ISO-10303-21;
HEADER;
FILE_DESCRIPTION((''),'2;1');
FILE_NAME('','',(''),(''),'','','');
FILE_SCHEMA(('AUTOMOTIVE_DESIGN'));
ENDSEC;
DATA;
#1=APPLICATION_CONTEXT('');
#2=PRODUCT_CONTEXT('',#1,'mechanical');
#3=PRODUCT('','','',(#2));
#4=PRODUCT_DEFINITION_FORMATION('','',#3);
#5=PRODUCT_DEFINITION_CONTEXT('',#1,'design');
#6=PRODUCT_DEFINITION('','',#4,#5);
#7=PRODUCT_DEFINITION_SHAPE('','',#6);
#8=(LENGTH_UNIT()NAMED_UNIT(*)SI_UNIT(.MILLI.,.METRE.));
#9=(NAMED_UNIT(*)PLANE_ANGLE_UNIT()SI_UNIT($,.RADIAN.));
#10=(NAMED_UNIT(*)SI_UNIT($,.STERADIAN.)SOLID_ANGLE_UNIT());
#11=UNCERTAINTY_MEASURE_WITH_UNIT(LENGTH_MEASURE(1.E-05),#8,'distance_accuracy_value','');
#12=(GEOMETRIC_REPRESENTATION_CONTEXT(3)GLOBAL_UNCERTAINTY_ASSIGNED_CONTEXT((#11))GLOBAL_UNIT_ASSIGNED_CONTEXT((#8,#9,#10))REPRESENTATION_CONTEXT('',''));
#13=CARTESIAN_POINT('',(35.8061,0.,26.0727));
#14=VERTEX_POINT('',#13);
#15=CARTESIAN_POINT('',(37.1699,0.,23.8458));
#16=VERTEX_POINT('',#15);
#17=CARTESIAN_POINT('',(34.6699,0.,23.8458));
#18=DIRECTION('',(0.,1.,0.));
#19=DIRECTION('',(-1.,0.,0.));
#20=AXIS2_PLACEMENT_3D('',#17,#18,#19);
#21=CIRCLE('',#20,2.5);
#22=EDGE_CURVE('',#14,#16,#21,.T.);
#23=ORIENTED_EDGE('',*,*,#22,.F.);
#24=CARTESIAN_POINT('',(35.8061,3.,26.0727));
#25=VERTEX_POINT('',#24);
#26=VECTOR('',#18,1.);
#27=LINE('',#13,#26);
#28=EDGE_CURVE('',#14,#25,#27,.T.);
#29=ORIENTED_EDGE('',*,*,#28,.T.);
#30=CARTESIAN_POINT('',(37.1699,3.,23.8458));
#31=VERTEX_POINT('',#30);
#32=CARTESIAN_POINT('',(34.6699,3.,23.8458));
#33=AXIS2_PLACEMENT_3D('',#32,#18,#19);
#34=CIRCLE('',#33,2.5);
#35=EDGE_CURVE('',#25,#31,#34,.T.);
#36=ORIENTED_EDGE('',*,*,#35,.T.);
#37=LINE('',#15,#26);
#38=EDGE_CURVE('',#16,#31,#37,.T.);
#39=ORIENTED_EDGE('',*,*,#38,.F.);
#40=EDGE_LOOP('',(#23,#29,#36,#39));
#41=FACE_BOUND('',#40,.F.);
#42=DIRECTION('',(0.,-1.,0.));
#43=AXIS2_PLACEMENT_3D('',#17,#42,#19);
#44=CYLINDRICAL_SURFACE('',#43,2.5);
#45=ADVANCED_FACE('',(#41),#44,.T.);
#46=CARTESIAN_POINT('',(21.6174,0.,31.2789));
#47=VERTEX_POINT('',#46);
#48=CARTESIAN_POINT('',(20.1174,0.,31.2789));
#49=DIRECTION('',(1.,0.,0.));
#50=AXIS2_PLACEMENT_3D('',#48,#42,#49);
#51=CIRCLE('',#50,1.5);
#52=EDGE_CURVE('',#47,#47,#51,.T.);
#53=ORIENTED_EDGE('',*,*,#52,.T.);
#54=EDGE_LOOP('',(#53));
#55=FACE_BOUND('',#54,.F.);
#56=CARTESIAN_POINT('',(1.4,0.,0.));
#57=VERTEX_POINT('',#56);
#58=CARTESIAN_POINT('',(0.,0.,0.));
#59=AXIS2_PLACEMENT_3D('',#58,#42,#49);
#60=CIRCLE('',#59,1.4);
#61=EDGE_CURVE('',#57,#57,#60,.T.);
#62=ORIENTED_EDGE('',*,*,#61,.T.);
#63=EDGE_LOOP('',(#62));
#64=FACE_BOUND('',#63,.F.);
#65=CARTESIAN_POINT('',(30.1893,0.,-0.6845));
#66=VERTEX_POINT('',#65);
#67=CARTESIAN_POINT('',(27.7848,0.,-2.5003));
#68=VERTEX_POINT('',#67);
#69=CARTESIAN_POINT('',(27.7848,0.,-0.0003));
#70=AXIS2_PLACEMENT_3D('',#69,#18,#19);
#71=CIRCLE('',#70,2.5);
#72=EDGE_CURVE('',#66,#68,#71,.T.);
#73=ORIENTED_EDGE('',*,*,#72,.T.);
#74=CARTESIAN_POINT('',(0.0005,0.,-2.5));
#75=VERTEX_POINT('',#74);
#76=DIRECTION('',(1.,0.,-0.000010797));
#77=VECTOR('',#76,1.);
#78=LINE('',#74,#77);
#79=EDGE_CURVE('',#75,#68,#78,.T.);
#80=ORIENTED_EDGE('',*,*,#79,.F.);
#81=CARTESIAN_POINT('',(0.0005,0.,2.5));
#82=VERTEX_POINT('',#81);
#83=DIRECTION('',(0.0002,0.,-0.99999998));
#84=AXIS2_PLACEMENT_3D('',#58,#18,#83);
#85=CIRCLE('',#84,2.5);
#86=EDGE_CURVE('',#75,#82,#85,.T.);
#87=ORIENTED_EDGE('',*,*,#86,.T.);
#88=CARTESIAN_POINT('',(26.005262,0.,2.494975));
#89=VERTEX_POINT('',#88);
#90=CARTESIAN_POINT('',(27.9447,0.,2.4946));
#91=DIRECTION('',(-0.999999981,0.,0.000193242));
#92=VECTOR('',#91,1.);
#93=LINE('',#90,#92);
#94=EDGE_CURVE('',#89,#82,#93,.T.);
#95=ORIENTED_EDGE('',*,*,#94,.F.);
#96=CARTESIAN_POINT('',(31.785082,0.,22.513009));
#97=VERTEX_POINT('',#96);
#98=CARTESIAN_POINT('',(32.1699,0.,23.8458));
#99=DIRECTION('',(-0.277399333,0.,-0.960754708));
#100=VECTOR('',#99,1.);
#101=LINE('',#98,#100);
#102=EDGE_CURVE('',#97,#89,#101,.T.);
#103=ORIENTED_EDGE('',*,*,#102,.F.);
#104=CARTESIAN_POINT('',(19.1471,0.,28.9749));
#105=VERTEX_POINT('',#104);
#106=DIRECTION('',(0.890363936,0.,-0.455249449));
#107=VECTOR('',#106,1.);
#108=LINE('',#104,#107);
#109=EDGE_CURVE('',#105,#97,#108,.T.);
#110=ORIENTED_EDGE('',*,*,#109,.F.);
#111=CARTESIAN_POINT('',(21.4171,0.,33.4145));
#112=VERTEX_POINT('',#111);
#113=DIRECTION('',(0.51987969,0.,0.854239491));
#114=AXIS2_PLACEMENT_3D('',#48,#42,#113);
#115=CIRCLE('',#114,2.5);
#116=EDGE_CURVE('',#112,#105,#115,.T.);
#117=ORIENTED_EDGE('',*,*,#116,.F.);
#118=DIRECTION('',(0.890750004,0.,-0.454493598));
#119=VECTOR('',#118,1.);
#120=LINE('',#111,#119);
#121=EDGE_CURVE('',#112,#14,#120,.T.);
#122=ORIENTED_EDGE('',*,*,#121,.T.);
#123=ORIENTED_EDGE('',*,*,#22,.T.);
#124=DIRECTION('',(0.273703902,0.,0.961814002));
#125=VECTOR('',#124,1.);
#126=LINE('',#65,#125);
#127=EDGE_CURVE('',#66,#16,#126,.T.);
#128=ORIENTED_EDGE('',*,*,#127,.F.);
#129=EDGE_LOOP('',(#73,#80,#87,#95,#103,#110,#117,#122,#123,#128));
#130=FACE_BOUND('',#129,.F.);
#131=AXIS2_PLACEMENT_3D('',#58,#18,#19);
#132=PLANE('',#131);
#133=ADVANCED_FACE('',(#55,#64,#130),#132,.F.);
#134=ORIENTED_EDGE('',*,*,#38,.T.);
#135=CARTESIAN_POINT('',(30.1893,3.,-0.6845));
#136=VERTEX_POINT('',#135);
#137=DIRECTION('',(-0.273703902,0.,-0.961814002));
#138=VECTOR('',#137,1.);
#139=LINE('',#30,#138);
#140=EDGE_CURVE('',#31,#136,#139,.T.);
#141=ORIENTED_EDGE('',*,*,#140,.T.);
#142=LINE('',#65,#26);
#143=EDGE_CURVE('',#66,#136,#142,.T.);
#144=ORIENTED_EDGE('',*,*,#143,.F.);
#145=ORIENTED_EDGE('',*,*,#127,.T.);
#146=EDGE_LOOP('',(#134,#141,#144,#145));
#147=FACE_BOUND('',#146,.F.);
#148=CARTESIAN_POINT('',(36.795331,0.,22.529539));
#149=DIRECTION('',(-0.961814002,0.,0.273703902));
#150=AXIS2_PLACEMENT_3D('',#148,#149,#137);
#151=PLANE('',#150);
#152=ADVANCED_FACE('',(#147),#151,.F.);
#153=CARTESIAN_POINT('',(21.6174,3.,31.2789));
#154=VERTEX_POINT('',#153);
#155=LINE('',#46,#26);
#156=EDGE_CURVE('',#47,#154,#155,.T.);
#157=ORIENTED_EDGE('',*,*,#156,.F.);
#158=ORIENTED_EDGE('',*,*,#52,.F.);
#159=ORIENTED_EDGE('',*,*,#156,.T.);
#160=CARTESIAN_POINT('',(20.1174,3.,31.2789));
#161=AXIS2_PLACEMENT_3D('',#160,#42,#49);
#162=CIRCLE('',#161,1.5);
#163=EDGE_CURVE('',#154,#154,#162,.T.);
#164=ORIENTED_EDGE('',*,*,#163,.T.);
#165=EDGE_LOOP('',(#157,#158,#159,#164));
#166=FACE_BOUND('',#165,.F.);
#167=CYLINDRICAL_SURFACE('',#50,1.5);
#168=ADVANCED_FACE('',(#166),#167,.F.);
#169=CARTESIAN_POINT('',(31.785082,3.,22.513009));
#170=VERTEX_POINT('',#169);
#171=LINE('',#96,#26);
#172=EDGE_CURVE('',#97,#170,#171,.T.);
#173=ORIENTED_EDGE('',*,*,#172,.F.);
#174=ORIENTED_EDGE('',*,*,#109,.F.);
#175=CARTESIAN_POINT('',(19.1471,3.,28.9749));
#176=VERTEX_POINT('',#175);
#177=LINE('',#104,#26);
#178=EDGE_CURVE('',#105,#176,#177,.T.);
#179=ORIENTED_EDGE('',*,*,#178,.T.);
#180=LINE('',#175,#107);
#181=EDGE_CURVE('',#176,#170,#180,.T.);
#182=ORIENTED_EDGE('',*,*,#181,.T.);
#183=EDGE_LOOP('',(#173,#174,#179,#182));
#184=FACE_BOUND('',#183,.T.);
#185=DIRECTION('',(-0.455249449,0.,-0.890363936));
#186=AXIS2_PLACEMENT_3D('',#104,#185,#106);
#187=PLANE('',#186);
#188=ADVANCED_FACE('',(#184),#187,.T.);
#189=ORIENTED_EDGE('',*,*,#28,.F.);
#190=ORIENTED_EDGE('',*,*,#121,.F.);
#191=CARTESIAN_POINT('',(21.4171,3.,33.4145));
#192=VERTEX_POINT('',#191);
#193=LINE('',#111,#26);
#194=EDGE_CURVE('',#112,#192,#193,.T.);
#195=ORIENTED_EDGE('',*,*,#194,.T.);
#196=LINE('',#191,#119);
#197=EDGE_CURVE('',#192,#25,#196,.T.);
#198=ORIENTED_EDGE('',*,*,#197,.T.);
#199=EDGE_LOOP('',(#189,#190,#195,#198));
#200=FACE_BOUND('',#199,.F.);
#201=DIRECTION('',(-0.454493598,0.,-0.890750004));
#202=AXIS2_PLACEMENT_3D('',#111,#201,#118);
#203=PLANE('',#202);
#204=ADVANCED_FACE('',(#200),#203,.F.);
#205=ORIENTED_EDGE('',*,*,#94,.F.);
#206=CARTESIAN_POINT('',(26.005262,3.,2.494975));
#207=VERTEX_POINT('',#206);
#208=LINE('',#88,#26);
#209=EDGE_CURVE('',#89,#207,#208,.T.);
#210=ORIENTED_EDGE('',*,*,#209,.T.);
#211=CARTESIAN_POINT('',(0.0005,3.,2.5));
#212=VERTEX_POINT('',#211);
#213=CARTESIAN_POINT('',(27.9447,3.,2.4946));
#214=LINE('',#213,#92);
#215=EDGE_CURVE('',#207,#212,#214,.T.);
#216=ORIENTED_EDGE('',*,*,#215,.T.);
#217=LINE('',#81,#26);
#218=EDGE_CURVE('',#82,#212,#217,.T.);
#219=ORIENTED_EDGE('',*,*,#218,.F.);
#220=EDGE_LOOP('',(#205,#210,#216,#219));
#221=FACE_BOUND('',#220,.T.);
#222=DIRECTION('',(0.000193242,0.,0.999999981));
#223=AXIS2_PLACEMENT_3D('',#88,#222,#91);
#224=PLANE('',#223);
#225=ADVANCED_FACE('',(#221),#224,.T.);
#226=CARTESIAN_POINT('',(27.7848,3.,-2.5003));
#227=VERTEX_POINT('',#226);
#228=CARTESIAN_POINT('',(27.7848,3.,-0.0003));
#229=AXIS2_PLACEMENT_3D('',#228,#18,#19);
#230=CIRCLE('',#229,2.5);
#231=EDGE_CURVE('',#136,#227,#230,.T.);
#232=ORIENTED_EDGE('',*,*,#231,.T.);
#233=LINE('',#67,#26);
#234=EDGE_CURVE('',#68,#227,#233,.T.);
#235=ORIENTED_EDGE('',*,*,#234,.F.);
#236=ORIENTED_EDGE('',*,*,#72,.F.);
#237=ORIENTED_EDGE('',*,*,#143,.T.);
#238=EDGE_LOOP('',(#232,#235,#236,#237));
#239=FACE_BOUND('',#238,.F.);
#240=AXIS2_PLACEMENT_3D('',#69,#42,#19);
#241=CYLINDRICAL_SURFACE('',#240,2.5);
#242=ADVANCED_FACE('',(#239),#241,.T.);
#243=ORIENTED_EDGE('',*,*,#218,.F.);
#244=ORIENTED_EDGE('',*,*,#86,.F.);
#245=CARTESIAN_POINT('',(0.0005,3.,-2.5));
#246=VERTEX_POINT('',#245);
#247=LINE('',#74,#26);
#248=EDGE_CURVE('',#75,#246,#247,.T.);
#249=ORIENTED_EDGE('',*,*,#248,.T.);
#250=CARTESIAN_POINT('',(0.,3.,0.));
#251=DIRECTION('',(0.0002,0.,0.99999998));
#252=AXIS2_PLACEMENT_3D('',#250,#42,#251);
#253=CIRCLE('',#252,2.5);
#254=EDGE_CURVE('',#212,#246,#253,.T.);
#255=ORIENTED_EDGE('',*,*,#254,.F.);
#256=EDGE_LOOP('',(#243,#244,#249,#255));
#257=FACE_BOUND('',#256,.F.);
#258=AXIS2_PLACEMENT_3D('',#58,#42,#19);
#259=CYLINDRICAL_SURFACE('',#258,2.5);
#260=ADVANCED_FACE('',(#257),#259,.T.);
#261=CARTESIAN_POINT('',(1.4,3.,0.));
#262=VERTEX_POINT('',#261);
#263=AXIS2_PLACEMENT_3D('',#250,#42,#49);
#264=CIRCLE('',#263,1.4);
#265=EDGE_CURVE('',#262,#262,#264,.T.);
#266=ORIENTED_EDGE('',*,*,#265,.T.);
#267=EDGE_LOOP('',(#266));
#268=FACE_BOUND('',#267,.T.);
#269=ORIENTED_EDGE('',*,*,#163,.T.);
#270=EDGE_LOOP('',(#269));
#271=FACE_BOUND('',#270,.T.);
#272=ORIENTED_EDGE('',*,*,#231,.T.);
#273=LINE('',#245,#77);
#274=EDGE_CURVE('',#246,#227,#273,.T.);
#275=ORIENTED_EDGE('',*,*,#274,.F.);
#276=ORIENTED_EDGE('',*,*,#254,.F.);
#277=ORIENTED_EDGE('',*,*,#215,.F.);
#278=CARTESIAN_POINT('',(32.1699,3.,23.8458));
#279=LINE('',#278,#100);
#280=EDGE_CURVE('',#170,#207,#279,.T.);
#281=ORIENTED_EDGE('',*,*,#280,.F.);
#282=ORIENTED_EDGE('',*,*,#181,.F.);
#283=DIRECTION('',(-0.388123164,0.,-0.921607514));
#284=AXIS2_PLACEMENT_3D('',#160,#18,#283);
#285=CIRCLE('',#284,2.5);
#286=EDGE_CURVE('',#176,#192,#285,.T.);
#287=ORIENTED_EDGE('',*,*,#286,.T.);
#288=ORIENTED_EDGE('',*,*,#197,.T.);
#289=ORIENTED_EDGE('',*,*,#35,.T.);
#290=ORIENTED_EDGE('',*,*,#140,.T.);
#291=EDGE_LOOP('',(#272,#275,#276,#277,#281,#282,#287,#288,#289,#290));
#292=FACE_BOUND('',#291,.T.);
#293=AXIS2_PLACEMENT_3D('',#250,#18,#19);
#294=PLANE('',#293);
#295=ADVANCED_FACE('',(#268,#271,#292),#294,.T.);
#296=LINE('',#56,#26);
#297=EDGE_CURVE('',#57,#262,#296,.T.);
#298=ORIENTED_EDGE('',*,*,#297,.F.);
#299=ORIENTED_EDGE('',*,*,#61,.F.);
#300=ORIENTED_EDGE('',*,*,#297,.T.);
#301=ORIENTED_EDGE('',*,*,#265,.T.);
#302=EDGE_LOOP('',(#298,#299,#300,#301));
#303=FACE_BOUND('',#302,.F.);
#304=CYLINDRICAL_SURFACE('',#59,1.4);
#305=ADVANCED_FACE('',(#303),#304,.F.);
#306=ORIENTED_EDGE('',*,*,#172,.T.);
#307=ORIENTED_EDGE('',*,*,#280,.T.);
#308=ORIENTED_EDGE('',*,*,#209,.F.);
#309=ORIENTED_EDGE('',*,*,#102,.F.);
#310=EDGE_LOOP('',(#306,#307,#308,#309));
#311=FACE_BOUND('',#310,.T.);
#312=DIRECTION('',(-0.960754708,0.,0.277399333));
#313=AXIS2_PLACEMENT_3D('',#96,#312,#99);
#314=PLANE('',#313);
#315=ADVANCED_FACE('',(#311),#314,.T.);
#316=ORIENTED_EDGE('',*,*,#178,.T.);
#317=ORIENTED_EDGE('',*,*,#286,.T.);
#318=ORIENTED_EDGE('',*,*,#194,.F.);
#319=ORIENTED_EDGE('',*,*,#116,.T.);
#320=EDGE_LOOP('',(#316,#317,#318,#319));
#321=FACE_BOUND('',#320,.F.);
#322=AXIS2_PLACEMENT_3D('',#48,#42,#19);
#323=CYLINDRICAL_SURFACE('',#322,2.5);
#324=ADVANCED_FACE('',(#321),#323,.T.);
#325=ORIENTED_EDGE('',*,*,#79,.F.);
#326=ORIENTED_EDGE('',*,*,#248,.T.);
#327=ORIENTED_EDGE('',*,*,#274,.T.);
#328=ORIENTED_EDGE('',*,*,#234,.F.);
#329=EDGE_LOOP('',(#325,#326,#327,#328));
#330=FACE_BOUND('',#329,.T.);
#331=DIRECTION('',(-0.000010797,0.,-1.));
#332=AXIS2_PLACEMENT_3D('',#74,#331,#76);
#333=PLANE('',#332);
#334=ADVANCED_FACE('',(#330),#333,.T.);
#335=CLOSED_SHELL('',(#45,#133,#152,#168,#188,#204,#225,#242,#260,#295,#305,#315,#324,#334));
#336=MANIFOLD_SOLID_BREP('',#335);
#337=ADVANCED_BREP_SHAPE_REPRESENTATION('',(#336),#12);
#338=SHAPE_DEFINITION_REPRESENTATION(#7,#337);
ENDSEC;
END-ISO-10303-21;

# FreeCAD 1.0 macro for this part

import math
import FreeCAD as App
import Part
import Sketcher

V = App.Vector
Q = App.Units.Quantity

doc = App.newDocument("Part")
params = doc.addObject("Spreadsheet::Sheet", "Params")
for row, (alias, value) in enumerate([
    ("sketch1_radius", "2.5 mm"),
    ("sketch1_radius2", "2.5 mm"),
    ("sketch1_radius3", "2.5 mm"),
    ("sketch1_radius4", "2.5 mm"),
    ("pad1_length", "3 mm"),
    ("sketch2_diameter", "2.8 mm"),
    ("pocket1_length", "8 mm"),
    ("sketch3_diameter", "3 mm"),
    ("pocket2_length", "10 mm"),
], start=1):
    params.set(f"A{row}", alias)
    params.set(f"B{row}", "=" + value)
    params.setAlias(f"B{row}", alias)

body = doc.addObject("PartDesign::Body", "Body")

# Sketch on XZ plane
sketch1 = body.newObject("Sketcher::SketchObject", "Sketch")
sketch1.AttachmentSupport = (doc.getObject("XZ_Plane"), [""])
sketch1.MapMode = "FlatFace"
sketch1.addGeometry([
    Part.ArcOfCircle(Part.Circle(V(0, 0, 0), V(0, 0, 1), 2.5), math.radians(89.988541), math.radians(270.011459)),  # 0
    Part.LineSegment(V(0.0005, 2.5, 0), V(26.005262, 2.494975, 0)),  # 1
    Part.LineSegment(V(26.005262, 2.494975, 0), V(31.785082, 22.513009, 0)),  # 2
    Part.LineSegment(V(31.785082, 22.513009, 0), V(19.1471, 28.9749, 0)),  # 3
    Part.ArcOfCircle(Part.Circle(V(20.1174, 31.2789, 0), V(0, 0, 1), 2.5), math.radians(58.675818), math.radians(247.162232)),  # 4
    Part.LineSegment(V(21.4171, 33.4145, 0), V(35.8061, 26.0727, 0)),  # 5
    Part.ArcOfCircle(Part.Circle(V(34.6699, 23.8458, 0), V(0, 0, 1), 2.5), math.radians(0), math.radians(62.968598)),  # 6
    Part.LineSegment(V(37.1699, 23.8458, 0), V(30.1893, -0.6845, 0)),  # 7
    Part.ArcOfCircle(Part.Circle(V(27.7848, -0.0003, 0), V(0, 0, 1), 2.5), math.radians(-90), math.radians(-15.883692)),  # 8
    Part.LineSegment(V(27.7848, -2.5003, 0), V(0.0005, -2.5, 0)),  # 9
], False)
sketch1.addConstraint([
    Sketcher.Constraint("Coincident", 0, 1, 1, 1),
    Sketcher.Constraint("Coincident", 1, 2, 2, 1),
    Sketcher.Constraint("Coincident", 2, 2, 3, 1),
    Sketcher.Constraint("Coincident", 3, 2, 4, 2),
    Sketcher.Constraint("Coincident", 4, 1, 5, 1),
    Sketcher.Constraint("Coincident", 5, 2, 6, 2),
    Sketcher.Constraint("Coincident", 6, 1, 7, 1),
    Sketcher.Constraint("Coincident", 7, 2, 8, 2),
    Sketcher.Constraint("Coincident", 8, 1, 9, 1),
    Sketcher.Constraint("Coincident", 9, 2, 0, 2),
    Sketcher.Constraint("Coincident", 0, 3, -1, 1),
    Sketcher.Constraint("Radius", 0, Q("2.5 mm")),
    Sketcher.Constraint("Radius", 4, Q("2.5 mm")),
    Sketcher.Constraint("Radius", 6, Q("2.5 mm")),
    Sketcher.Constraint("Radius", 8, Q("2.5 mm")),
    Sketcher.Constraint("DistanceX", -1, 1, 6, 3, Q("34.67 mm")),
    Sketcher.Constraint("DistanceY", 1, 2, 3, 2, Q("26.48 mm")),
    Sketcher.Constraint("DistanceX", 3, 2, 4, 1, Q("2.27 mm")),
    Sketcher.Constraint("DistanceY", -1, 1, 4, 3, Q("31.279 mm")),
    Sketcher.Constraint("DistanceY", -1, 1, 1, 2, Q("2.495 mm")),
    Sketcher.Constraint("DistanceX", -1, 1, 2, 2, Q("31.785 mm")),
    Sketcher.Constraint("DistanceY", -1, 1, 2, 2, Q("22.513 mm")),
    Sketcher.Constraint("DistanceX", -1, 1, 3, 2, Q("19.147 mm")),
    Sketcher.Constraint("DistanceX", -1, 1, 5, 2, Q("35.806 mm")),
    Sketcher.Constraint("DistanceY", 6, 3, 4, 3, Q("7.433 mm")),
    Sketcher.Constraint("DistanceX", 8, 3, 6, 3, Q("6.885 mm")),
    Sketcher.Constraint("DistanceY", 8, 3, 6, 3, Q("23.846 mm")),
    Sketcher.Constraint("DistanceX", 0, 1, 4, 3, Q("20.117 mm")),
    Sketcher.Constraint("DistanceY", 6, 1, 5, 2, Q("2.227 mm")),
    Sketcher.Constraint("DistanceX", 1, 2, 7, 2, Q("4.184 mm")),
    Sketcher.Constraint("DistanceX", 8, 1, 6, 3, Q("6.885 mm")),
    Sketcher.Constraint("Distance", 1, Q("26.0048 mm")),
    Sketcher.Constraint("Distance", 9, Q("27.7843 mm")),
])
sketch1.setExpression("Constraints[11]", "Params.sketch1_radius")
sketch1.setExpression("Constraints[12]", "Params.sketch1_radius2")
sketch1.setExpression("Constraints[13]", "Params.sketch1_radius3")
sketch1.setExpression("Constraints[14]", "Params.sketch1_radius4")
pad1 = body.newObject("PartDesign::Pad", "Pad")
pad1.Profile = sketch1
pad1.setExpression("Length", "Params.pad1_length")
pad1.Reversed = True

# Sketch on XZ plane
sketch2 = body.newObject("Sketcher::SketchObject", "Sketch001")
sketch2.AttachmentSupport = (doc.getObject("XZ_Plane"), [""])
sketch2.MapMode = "FlatFace"
sketch2.addGeometry(Part.Circle(V(0, 0, 0), V(0, 0, 1), 1.4), False)
sketch2.addConstraint([
    Sketcher.Constraint("Coincident", 0, 3, -1, 1),
    Sketcher.Constraint("Diameter", 0, Q("2.8 mm")),
])
sketch2.setExpression("Constraints[1]", "Params.sketch2_diameter")
pocket1 = body.newObject("PartDesign::Pocket", "Pocket")
pocket1.Profile = sketch2
pocket1.setExpression("Length", "Params.pocket1_length")

# Sketch on XZ plane
sketch3 = body.newObject("Sketcher::SketchObject", "Sketch002")
sketch3.AttachmentSupport = (doc.getObject("XZ_Plane"), [""])
sketch3.MapMode = "FlatFace"
sketch3.addGeometry(Part.Circle(V(20.1, 31.3, 0), V(0, 0, 1), 1.5), False)
sketch3.addConstraint([
    Sketcher.Constraint("Diameter", 0, Q("3 mm")),
    Sketcher.Constraint("DistanceY", -1, 1, 0, 3, Q("31.279 mm")),
    Sketcher.Constraint("DistanceX", -1, 1, 0, 3, Q("20.1174 mm")),
])
sketch3.setExpression("Constraints[0]", "Params.sketch3_diameter")
pocket2 = body.newObject("PartDesign::Pocket", "Pocket001")
pocket2.Profile = sketch3
pocket2.setExpression("Length", "Params.pocket2_length")

doc.recompute()
